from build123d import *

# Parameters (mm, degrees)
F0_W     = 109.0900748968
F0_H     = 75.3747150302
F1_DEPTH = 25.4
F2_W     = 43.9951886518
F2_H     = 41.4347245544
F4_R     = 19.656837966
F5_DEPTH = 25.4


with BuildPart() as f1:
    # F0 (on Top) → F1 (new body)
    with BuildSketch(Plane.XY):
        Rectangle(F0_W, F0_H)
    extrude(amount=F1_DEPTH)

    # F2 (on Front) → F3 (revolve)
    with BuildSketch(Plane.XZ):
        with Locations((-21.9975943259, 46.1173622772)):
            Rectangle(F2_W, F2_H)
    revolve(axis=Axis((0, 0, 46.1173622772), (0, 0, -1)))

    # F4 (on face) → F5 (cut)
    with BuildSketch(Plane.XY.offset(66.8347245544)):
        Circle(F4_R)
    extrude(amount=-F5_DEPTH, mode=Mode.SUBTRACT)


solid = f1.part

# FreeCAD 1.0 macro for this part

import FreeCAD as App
import Part
import Sketcher
Q = App.Units.Quantity

doc = App.newDocument("Part")
params = doc.addObject("Spreadsheet::Sheet", "Params")
for row, (alias, value) in enumerate([
    ("pad1_length", "1 in"),
    ("revolution_angle", "360 deg"),
    ("pocket1_length", "1 in"),
], start=1):
    params.set(f"A{row}", alias)
    params.set(f"B{row}", "=" + value)
    params.setAlias(f"B{row}", alias)

body = doc.addObject("PartDesign::Body", "Body")

# Sketch on XY plane
sketch1 = doc.addObject("Sketcher::SketchObject", "Sketch")
body.addObject(sketch1)
sketch1.AttachmentSupport = (doc.XY_Plane, [""])
sketch1.MapMode = "FlatFace"
sketch1.addGeometry(Part.LineSegment(App.Vector(-54.545037, 37.687358, 0), App.Vector(-54.545037, -37.687358, 0)), False)
sketch1.addGeometry(Part.LineSegment(App.Vector(-54.545037, -37.687358, 0), App.Vector(54.545037, -37.687358, 0)), False)
sketch1.addGeometry(Part.LineSegment(App.Vector(54.545037, -37.687358, 0), App.Vector(54.545037, 37.687358, 0)), False)
sketch1.addGeometry(Part.LineSegment(App.Vector(54.545037, 37.687358, 0), App.Vector(-54.545037, 37.687358, 0)), False)
sketch1.addConstraint(Sketcher.Constraint("Coincident", 0, 2, 1, 1))
sketch1.addConstraint(Sketcher.Constraint("Coincident", 1, 2, 2, 1))
sketch1.addConstraint(Sketcher.Constraint("Coincident", 2, 2, 3, 1))
sketch1.addConstraint(Sketcher.Constraint("Coincident", 3, 2, 0, 1))
sketch1.addConstraint(Sketcher.Constraint("Vertical", 0))
sketch1.addConstraint(Sketcher.Constraint("Horizontal", 1))
sketch1.addConstraint(Sketcher.Constraint("Vertical", 2))
sketch1.addConstraint(Sketcher.Constraint("Horizontal", 3))
sketch1.addConstraint(Sketcher.Constraint("Symmetric", 0, 2, 2, 2, -1, 1))
sketch1.addConstraint(Sketcher.Constraint("DistanceX", 1, 1, 1, 2, 109.090075))
sketch1.addConstraint(Sketcher.Constraint("DistanceY", 0, 2, 0, 1, 75.374715))
pad1 = doc.addObject("PartDesign::Pad", "Pad")
body.addObject(pad1)
pad1.Profile = sketch1
pad1.setExpression("Length", "Params.pad1_length")

# Sketch on XZ plane
sketch2 = doc.addObject("Sketcher::SketchObject", "Sketch001")
body.addObject(sketch2)
sketch2.AttachmentSupport = (doc.XZ_Plane, [""])
sketch2.MapMode = "FlatFace"
sketch2.addGeometry(Part.LineSegment(App.Vector(-43.995189, 66.834725, 0), App.Vector(-43.995189, 25.4, 0)), False)
sketch2.addGeometry(Part.LineSegment(App.Vector(-43.995189, 25.4, 0), App.Vector(0, 25.4, 0)), False)
sketch2.addGeometry(Part.LineSegment(App.Vector(0, 25.4, 0), App.Vector(0, 66.834725, 0)), False)
sketch2.addGeometry(Part.LineSegment(App.Vector(0, 66.834725, 0), App.Vector(-43.995189, 66.834725, 0)), False)
sketch2.addConstraint(Sketcher.Constraint("Coincident", 0, 2, 1, 1))
sketch2.addConstraint(Sketcher.Constraint("Coincident", 1, 2, 2, 1))
sketch2.addConstraint(Sketcher.Constraint("Coincident", 2, 2, 3, 1))
sketch2.addConstraint(Sketcher.Constraint("Coincident", 3, 2, 0, 1))
sketch2.addConstraint(Sketcher.Constraint("Vertical", 0))
sketch2.addConstraint(Sketcher.Constraint("Horizontal", 1))
sketch2.addConstraint(Sketcher.Constraint("Vertical", 2))
sketch2.addConstraint(Sketcher.Constraint("Horizontal", 3))
sketch2.addConstraint(Sketcher.Constraint("PointOnObject", 1, 2, -2))
sketch2.addConstraint(Sketcher.Constraint("DistanceY", -1, 1, 0, 2, Q("1 in")))
sketch2.addConstraint(Sketcher.Constraint("DistanceX", 1, 1, 1, 2, 43.995189))
sketch2.addConstraint(Sketcher.Constraint("DistanceY", 0, 2, 0, 1, 41.434725))
revolution = doc.addObject("PartDesign::Revolution", "Revolution")
body.addObject(revolution)
revolution.Profile = sketch2
revolution.ReferenceAxis = (sketch2, ["V_Axis"])
revolution.setExpression("Angle", "Params.revolution_angle")

# Sketch on XY plane
sketch3 = doc.addObject("Sketcher::SketchObject", "Sketch002")
body.addObject(sketch3)
sketch3.AttachmentSupport = (doc.XY_Plane, [""])
sketch3.MapMode = "FlatFace"
sketch3.AttachmentOffset = App.Placement(App.Vector(0, 0, 66.834725), App.Rotation())
sketch3.addGeometry(Part.Circle(App.Vector(0, 0, 0), App.Vector(0, 0, 1), 19.656838), False)
sketch3.addConstraint(Sketcher.Constraint("Coincident", 0, 3, -1, 1))
sketch3.addConstraint(Sketcher.Constraint("Diameter", 0, 39.313676))
pocket1 = doc.addObject("PartDesign::Pocket", "Pocket")
body.addObject(pocket1)
pocket1.Profile = sketch3
pocket1.setExpression("Length", "Params.pocket1_length")

doc.recompute()
